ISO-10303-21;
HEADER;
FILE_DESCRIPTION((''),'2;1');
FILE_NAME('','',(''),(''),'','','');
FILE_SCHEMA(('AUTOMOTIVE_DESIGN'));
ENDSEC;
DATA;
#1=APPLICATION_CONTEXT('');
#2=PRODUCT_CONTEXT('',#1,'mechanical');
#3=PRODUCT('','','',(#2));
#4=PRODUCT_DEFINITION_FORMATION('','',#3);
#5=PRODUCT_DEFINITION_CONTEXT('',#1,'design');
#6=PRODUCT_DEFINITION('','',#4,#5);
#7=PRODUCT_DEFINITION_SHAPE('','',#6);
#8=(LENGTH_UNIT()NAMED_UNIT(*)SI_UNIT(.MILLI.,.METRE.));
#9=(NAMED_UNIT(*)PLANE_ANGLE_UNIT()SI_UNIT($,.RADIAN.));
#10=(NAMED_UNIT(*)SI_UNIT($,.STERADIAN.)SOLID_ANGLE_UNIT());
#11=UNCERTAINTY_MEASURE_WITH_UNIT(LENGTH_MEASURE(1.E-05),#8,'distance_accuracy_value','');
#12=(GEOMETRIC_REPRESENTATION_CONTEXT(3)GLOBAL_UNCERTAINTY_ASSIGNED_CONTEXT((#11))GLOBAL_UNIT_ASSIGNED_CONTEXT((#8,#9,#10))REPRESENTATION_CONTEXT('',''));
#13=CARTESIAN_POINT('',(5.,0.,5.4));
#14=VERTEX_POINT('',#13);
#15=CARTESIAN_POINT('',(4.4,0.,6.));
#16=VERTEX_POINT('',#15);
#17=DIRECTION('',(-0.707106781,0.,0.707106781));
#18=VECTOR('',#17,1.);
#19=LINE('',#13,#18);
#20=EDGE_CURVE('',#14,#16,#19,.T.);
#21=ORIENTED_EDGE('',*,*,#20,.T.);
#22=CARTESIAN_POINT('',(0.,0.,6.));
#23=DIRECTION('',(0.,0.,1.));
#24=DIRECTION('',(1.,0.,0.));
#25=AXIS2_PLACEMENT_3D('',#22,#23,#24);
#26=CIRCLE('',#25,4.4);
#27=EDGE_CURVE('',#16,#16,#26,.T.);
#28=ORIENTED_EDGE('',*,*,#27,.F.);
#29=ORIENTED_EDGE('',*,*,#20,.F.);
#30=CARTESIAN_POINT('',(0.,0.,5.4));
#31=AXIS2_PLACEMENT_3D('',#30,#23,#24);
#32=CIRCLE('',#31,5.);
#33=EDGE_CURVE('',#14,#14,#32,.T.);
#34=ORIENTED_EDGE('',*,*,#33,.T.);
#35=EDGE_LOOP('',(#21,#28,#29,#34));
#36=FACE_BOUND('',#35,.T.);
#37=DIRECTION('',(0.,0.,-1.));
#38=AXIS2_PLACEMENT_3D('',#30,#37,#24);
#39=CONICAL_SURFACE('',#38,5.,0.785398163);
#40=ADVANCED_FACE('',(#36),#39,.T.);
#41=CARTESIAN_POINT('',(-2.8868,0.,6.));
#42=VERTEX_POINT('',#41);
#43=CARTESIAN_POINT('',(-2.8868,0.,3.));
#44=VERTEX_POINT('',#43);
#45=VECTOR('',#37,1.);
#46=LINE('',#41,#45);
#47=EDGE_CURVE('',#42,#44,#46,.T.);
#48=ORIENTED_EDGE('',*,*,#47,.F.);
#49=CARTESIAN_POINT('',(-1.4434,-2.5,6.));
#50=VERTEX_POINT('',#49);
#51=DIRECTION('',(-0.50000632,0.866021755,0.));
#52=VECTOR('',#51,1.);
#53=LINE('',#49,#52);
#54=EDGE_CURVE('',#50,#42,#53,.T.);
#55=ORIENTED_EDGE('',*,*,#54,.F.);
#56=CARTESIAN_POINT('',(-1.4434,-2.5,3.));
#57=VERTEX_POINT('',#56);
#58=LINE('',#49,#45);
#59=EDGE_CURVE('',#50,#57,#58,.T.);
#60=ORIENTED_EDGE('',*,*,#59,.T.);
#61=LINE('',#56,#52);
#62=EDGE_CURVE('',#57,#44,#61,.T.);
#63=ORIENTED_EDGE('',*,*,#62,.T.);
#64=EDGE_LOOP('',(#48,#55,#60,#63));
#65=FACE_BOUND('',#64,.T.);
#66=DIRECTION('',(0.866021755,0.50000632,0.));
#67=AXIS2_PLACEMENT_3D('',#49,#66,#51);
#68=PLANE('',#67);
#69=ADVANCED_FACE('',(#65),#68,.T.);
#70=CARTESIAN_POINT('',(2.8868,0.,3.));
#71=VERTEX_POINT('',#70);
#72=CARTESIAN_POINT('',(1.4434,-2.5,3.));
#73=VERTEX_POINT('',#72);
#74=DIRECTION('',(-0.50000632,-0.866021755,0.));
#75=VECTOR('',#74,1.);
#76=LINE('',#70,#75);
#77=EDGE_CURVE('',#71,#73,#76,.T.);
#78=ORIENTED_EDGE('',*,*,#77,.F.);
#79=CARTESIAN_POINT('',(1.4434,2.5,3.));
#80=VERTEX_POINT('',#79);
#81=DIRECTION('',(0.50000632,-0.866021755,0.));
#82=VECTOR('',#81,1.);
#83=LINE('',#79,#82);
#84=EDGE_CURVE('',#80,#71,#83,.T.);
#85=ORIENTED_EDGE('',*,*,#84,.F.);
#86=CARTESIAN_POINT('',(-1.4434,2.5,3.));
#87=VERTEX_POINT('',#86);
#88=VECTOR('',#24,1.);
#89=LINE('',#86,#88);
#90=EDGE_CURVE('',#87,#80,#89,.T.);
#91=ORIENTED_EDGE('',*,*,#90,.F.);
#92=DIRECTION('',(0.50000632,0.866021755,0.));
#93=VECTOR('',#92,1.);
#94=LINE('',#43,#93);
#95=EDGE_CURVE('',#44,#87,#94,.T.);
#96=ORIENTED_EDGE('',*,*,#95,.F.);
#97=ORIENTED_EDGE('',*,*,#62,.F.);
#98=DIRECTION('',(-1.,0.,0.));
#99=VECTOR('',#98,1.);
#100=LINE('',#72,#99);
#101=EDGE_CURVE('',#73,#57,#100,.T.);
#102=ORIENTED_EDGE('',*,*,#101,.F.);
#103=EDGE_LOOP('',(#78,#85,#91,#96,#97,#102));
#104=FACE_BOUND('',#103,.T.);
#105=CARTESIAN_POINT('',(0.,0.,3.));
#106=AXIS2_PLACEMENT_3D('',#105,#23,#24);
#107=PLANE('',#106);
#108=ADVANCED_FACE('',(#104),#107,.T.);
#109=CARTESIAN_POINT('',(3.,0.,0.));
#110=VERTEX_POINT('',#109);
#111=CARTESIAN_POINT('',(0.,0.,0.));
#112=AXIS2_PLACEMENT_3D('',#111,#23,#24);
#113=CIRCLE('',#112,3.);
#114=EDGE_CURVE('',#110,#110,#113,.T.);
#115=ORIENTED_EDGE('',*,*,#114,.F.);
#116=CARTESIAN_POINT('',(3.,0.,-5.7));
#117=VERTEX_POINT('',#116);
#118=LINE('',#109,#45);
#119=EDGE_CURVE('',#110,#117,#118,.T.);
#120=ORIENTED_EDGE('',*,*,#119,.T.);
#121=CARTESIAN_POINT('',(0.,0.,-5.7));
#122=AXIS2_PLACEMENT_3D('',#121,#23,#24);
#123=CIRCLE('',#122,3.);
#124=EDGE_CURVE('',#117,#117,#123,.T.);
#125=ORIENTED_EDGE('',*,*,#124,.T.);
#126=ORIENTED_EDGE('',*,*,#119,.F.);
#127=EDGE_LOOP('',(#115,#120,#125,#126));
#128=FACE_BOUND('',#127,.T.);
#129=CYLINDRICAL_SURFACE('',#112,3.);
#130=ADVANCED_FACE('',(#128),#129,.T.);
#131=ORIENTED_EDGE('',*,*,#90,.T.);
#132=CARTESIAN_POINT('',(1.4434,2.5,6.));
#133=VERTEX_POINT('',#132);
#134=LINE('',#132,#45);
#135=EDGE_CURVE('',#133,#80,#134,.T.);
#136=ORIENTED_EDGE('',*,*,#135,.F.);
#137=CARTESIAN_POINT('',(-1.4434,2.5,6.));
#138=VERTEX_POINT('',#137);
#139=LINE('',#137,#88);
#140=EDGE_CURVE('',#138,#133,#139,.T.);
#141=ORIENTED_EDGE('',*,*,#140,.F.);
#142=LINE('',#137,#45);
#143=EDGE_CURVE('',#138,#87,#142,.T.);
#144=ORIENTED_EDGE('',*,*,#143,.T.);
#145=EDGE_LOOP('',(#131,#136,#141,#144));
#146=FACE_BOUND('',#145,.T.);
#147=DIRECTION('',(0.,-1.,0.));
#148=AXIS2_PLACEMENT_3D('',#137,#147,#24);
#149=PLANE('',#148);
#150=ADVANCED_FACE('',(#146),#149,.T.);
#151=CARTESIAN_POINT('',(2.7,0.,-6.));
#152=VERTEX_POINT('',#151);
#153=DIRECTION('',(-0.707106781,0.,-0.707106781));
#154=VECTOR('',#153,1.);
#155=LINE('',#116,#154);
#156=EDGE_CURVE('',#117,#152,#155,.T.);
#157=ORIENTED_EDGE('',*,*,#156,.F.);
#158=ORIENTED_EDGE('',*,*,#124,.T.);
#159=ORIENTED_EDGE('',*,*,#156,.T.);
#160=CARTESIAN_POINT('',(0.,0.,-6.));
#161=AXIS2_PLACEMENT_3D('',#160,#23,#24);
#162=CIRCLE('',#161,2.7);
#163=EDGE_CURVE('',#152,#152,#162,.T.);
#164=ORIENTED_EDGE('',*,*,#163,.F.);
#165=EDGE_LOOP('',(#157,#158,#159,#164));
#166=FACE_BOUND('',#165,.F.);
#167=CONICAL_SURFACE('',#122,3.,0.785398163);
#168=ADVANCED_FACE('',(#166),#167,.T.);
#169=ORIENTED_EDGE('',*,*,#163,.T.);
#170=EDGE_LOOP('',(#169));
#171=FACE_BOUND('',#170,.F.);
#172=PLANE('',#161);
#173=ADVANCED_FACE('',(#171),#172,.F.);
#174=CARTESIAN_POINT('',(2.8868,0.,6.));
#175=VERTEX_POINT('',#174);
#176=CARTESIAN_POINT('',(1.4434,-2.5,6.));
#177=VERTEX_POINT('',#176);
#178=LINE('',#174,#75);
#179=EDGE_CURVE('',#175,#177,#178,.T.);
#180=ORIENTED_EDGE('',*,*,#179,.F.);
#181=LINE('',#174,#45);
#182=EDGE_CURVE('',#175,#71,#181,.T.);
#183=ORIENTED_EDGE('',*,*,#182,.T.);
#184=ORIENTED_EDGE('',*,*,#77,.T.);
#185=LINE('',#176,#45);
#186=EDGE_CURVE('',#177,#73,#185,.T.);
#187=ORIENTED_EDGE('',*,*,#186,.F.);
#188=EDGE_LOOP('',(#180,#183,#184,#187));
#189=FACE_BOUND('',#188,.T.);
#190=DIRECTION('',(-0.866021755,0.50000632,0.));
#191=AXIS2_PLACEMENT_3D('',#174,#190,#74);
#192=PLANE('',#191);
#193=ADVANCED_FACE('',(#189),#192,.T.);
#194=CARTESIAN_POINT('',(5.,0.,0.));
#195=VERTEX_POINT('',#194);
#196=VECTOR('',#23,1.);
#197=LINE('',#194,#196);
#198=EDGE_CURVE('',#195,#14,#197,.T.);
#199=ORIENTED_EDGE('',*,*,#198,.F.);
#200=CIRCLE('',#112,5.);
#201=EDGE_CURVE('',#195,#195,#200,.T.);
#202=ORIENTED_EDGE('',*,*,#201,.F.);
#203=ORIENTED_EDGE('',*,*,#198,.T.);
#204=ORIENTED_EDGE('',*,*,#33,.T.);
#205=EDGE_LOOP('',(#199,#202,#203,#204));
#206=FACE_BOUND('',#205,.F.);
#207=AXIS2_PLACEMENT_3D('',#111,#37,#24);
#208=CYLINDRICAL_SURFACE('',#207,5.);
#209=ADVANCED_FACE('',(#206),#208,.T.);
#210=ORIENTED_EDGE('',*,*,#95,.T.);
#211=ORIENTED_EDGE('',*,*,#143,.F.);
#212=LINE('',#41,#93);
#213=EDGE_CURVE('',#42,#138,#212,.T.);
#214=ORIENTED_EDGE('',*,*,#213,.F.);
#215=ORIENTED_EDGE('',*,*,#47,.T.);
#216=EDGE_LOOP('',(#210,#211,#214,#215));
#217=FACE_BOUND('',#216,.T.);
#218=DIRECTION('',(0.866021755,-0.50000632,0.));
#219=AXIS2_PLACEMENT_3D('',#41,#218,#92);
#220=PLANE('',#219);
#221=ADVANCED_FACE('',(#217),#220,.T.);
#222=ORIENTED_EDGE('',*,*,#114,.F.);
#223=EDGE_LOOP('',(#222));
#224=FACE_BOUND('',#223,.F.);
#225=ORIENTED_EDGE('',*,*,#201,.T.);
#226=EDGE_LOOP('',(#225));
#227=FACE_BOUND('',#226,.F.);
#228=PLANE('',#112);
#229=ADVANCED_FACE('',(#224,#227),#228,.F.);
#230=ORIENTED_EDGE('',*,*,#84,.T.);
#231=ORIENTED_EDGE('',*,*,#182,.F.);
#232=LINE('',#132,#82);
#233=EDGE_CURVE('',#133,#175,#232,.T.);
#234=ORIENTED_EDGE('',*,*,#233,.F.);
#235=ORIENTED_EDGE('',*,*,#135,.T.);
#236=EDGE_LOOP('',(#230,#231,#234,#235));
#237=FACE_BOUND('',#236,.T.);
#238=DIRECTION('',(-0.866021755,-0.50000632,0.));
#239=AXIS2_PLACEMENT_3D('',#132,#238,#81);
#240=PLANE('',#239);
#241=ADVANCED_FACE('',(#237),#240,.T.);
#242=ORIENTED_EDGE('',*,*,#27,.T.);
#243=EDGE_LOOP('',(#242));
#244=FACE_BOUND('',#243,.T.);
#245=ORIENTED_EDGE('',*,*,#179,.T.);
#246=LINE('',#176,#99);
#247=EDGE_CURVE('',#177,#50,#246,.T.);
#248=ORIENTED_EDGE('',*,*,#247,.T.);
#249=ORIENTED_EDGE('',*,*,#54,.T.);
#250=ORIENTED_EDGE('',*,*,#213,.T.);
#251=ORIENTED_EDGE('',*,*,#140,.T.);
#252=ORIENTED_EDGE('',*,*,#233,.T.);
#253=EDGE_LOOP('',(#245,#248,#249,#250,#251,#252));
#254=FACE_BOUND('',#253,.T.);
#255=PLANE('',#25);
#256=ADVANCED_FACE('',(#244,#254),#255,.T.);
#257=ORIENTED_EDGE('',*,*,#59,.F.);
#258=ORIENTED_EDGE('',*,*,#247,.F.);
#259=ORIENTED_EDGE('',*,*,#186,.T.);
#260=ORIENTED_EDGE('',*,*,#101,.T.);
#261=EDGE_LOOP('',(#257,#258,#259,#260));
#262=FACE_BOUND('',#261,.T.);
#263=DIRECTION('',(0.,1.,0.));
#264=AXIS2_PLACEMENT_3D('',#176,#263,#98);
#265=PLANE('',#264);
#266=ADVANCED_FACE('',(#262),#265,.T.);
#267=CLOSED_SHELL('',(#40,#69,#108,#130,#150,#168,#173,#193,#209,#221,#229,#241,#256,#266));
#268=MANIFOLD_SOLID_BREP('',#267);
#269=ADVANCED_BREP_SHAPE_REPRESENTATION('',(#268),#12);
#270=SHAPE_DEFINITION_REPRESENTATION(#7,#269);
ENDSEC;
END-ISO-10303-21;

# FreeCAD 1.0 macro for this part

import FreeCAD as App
import Part
import Sketcher
Q = App.Units.Quantity


def edges_at(feature, points):
    """Names of the edges that pass closest to the given points."""
    edges = feature.Shape.Edges
    near = lambda p: min(range(len(edges)), key=lambda i: edges[i].distToShape(Part.Vertex(*p))[0])
    return sorted({f"Edge{near(p) + 1}" for p in points})


def add_polygon(sketch, points):
    """Adds a closed chain of lines whose ends are joined by coincident constraints."""
    first, n = sketch.GeometryCount, len(points)
    for a, b in zip(points, points[1:] + points[:1]):
        sketch.addGeometry(Part.LineSegment(App.Vector(*a, 0), App.Vector(*b, 0)), False)
    for i in range(n):
        sketch.addConstraint(Sketcher.Constraint("Coincident", first + i, 2, first + (i + 1) % n, 1))

doc = App.newDocument("Part")
body = doc.addObject("PartDesign::Body", "Body")

# Sketch on XY plane
sketch1 = body.newObject("Sketcher::SketchObject", "Sketch")
sketch1.AttachmentSupport = (doc.getObject("XY_Plane"), [""])
sketch1.MapMode = "FlatFace"
sketch1.addGeometry(Part.Circle(App.Vector(0, 0, 0), App.Vector(0, 0, 1), 3), False)
sketch1.addConstraint(Sketcher.Constraint("Coincident", 0, 3, -1, 1))
sketch1.addConstraint(Sketcher.Constraint("Diameter", 0, 6.0))
pad1 = body.newObject("PartDesign::Pad", "Pad")
pad1.Profile = sketch1
pad1.Length = 6
pad1.Reversed = True

# Sketch on XY plane
sketch2 = body.newObject("Sketcher::SketchObject", "Sketch001")
sketch2.AttachmentSupport = (doc.getObject("XY_Plane"), [""])
sketch2.MapMode = "FlatFace"
sketch2.addGeometry(Part.Circle(App.Vector(0, 0, 0), App.Vector(0, 0, 1), 5), False)
sketch2.addConstraint(Sketcher.Constraint("Coincident", 0, 3, -1, 1))
sketch2.addConstraint(Sketcher.Constraint("Diameter", 0, 10.0))
pad2 = body.newObject("PartDesign::Pad", "Pad001")
pad2.Profile = sketch2
pad2.Length = 6

# Sketch on XY plane
sketch3 = body.newObject("Sketcher::SketchObject", "Sketch002")
sketch3.AttachmentSupport = (doc.getObject("XY_Plane"), [""])
sketch3.MapMode = "FlatFace"
sketch3.AttachmentOffset = App.Placement(App.Vector(0, 0, 6), App.Rotation())
add_polygon(sketch3, [(1.4, -2.5), (2.9, 0), (1.4, 2.5), (-1.4, 2.5), (-2.9, 0), (-1.4, -2.5)])  # lines 0-5
sketch3.addConstraint(Sketcher.Constraint("Horizontal", 2))
sketch3.addConstraint(Sketcher.Constraint("Horizontal", 5))
sketch3.addConstraint(Sketcher.Constraint("Symmetric", 0, 2, 3, 2, -1, 1))
sketch3.addConstraint(Sketcher.Constraint("Symmetric", 1, 2, 4, 2, -1, 1))
sketch3.addConstraint(Sketcher.Constraint("PointOnObject", 0, 2, -1))
sketch3.addConstraint(Sketcher.Constraint("Parallel", 0, 3))
sketch3.addConstraint(Sketcher.Constraint("Vertical", 2, 2, 4, 2))
sketch3.addConstraint(Sketcher.Constraint("DistanceY", 4, 2, 2, 2, 5.0))
sketch3.addConstraint(Sketcher.Constraint("Angle", 0, Q("59.9996 deg")))
sketch3.addConstraint(Sketcher.Constraint("DistanceX", 2, 2, 2, 1, 2.8868))
pocket1 = body.newObject("PartDesign::Pocket", "Pocket")
pocket1.Profile = sketch3
pocket1.Length = 3
doc.recompute()

chamfer = body.newObject("PartDesign::Chamfer", "Chamfer")
chamfer.Base = (pocket1, edges_at(pocket1, [(-5, 0, 6)]))
chamfer.Size = 0.6
doc.recompute()

chamfer2 = body.newObject("PartDesign::Chamfer", "Chamfer001")
chamfer2.Base = (chamfer, edges_at(chamfer, [(-3, 0, -6)]))
chamfer2.Size = 0.3

doc.recompute()
